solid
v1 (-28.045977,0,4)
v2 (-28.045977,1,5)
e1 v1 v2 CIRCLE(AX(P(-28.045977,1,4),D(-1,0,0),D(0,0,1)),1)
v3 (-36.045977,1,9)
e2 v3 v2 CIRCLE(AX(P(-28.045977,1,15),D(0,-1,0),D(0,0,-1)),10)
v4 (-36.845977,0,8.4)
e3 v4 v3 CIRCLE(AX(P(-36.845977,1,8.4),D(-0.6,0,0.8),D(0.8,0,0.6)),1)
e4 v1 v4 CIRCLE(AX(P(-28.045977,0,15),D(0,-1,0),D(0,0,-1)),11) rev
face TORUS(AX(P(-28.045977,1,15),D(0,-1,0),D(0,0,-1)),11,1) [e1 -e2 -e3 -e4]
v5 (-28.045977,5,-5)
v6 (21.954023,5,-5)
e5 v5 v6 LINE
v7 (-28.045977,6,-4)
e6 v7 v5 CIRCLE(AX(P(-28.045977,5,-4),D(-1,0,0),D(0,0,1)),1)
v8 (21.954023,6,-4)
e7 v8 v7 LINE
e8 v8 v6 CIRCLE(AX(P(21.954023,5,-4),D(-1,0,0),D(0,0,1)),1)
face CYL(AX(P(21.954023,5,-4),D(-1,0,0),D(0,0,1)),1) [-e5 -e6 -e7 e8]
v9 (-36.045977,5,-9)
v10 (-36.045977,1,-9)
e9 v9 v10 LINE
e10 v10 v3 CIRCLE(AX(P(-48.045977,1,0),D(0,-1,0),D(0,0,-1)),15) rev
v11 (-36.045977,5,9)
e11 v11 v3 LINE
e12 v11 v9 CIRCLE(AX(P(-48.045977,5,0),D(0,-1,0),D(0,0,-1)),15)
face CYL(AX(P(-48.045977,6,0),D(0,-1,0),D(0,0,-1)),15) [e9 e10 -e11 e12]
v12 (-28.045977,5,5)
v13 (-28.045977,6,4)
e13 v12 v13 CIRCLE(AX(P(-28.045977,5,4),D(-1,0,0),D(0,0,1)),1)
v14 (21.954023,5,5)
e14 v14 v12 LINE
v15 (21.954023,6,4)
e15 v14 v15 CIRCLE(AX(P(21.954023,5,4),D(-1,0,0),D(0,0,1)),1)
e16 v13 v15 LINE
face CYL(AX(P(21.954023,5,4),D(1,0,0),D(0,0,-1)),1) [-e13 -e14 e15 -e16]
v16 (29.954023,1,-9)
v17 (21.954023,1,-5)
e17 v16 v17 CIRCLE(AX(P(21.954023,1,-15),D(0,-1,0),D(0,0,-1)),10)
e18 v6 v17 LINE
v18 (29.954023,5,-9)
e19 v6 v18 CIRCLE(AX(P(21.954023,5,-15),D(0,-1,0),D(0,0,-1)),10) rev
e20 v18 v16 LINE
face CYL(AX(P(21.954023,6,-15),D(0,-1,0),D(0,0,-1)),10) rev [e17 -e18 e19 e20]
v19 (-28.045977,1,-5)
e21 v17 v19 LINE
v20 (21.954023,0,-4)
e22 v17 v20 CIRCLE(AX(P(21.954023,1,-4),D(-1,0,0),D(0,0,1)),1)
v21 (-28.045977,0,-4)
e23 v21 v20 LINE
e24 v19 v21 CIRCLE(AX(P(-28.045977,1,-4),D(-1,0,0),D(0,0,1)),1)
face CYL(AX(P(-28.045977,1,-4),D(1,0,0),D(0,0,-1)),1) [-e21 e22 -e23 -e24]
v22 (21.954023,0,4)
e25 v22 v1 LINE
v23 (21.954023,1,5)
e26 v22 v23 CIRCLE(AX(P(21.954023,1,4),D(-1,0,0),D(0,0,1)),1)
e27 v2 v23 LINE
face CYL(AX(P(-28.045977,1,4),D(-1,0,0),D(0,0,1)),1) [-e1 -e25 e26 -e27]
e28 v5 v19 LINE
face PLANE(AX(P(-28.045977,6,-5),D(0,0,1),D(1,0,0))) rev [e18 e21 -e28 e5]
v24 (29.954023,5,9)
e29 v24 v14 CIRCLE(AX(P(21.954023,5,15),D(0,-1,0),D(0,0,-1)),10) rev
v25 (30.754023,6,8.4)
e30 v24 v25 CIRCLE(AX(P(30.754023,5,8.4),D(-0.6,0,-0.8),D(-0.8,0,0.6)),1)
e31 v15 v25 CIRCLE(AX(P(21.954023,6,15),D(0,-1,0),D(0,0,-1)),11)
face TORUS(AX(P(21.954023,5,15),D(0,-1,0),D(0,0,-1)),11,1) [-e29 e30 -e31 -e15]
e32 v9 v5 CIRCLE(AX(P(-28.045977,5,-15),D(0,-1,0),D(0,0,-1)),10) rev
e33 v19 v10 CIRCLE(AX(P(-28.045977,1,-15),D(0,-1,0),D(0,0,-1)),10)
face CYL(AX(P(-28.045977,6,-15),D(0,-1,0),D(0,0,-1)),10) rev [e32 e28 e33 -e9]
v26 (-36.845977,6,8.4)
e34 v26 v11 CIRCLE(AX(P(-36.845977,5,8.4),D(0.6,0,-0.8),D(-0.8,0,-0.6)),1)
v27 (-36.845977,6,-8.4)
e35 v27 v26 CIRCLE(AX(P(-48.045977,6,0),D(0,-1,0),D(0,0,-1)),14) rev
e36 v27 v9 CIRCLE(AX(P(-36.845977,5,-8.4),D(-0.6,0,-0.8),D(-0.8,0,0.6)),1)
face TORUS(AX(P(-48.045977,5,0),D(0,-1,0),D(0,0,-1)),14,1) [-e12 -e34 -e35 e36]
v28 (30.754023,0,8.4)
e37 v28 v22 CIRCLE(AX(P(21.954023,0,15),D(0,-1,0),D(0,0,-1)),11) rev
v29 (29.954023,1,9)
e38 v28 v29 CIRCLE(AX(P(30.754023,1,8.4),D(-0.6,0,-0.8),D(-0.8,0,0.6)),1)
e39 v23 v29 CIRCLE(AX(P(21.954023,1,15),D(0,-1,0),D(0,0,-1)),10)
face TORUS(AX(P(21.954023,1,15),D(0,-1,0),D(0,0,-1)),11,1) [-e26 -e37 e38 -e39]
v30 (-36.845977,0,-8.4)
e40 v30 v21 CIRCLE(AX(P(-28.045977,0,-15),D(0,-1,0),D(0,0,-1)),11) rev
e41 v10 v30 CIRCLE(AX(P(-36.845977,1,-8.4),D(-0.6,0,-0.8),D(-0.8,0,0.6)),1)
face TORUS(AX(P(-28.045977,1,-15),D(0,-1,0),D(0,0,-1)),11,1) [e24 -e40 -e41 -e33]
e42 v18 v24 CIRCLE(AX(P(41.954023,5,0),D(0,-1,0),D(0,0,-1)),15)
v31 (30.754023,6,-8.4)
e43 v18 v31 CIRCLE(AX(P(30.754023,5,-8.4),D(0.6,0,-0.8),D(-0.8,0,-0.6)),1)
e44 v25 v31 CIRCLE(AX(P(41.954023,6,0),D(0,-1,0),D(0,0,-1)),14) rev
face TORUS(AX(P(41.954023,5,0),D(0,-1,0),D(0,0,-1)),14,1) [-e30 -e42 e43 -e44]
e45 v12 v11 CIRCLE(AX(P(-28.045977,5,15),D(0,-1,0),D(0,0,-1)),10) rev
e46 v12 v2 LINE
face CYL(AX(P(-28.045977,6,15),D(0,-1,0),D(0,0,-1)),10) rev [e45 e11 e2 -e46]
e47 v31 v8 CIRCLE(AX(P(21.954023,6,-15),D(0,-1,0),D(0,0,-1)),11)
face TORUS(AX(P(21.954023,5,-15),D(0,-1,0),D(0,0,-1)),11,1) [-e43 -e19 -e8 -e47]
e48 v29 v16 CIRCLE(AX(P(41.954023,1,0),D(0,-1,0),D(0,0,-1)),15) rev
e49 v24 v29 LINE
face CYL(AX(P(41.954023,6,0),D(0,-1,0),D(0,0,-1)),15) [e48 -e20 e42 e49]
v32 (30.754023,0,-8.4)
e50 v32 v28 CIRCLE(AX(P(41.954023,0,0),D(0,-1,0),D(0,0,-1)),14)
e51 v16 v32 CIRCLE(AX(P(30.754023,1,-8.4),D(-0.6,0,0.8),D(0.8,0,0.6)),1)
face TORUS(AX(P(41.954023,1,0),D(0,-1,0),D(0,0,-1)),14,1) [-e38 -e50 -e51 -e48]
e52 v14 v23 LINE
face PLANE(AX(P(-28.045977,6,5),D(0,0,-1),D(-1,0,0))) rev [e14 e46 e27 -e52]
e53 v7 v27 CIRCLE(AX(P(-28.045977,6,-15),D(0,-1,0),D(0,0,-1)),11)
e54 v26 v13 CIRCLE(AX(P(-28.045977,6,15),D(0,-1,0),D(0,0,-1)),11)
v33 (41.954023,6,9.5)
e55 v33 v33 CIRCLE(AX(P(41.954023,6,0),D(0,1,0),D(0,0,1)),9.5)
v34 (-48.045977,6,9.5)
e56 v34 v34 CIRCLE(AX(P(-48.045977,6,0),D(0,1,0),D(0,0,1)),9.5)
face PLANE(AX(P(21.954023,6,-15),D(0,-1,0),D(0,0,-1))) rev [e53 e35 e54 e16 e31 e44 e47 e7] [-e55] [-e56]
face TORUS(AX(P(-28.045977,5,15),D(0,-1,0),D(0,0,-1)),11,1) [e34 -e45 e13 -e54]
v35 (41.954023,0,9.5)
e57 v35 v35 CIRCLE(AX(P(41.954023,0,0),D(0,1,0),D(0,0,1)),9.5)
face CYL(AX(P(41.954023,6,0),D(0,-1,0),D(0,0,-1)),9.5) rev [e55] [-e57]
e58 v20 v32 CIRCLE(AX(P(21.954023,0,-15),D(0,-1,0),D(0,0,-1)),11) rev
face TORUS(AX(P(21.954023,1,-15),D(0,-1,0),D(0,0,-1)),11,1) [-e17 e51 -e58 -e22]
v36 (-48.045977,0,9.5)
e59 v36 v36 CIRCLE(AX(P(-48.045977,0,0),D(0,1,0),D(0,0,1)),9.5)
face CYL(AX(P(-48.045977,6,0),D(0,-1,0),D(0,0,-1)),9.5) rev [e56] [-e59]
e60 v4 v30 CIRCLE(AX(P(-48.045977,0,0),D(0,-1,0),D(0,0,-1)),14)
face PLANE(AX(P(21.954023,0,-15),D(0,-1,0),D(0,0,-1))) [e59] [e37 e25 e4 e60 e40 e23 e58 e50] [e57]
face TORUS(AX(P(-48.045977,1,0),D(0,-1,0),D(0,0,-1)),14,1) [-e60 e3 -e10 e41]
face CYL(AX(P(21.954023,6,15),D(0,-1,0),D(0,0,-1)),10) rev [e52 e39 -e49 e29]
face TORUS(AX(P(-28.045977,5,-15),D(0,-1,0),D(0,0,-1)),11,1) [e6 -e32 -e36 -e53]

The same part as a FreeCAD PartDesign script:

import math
import FreeCAD as App
import Part
import Sketcher


def edges_at(feature, points):
    """Names of the edges that pass closest to the given points."""
    edges = feature.Shape.Edges
    near = lambda p: min(range(len(edges)), key=lambda i: edges[i].distToShape(Part.Vertex(*p))[0])
    return sorted({f"Edge{near(p) + 1}" for p in points})

doc = App.newDocument("Part")
body = doc.addObject("PartDesign::Body", "Body")

sketch1 = doc.addObject("Sketcher::SketchObject", "Sketch")
body.addObject(sketch1)
sketch1.AttachmentSupport = (doc.XZ_Plane, [""])
sketch1.MapMode = "FlatFace"
sketch1.addGeometry(Part.LineSegment(App.Vector(21.954023, -5, 0), App.Vector(-28.045977, -5, 0)), False)
sketch1.addGeometry(Part.ArcOfCircle(Part.Circle(App.Vector(-28.045977, -15, 0), App.Vector(0, 0, 1), 10), math.radians(90), math.radians(143.130102)), False)
sketch1.addGeometry(Part.ArcOfCircle(Part.Circle(App.Vector(-48.045977, 0, 0), App.Vector(0, 0, 1), 15), math.radians(36.869898), math.radians(323.130102)), False)
sketch1.addGeometry(Part.ArcOfCircle(Part.Circle(App.Vector(-28.045977, 15, 0), App.Vector(0, 0, 1), 10), math.radians(-143.130102), math.radians(-90)), False)
sketch1.addGeometry(Part.LineSegment(App.Vector(-28.045977, 5, 0), App.Vector(21.954023, 5, 0)), False)
sketch1.addGeometry(Part.ArcOfCircle(Part.Circle(App.Vector(21.954023, 15, 0), App.Vector(0, 0, 1), 10), math.radians(-90), math.radians(-36.869898)), False)
sketch1.addGeometry(Part.ArcOfCircle(Part.Circle(App.Vector(41.954023, 0, 0), App.Vector(0, 0, 1), 15), math.radians(-143.130102), math.radians(143.130102)), False)
sketch1.addGeometry(Part.ArcOfCircle(Part.Circle(App.Vector(21.954023, -15, 0), App.Vector(0, 0, 1), 10), math.radians(36.869898), math.radians(90)), False)
sketch1.addGeometry(Part.Circle(App.Vector(41.954023, 0, 0), App.Vector(0, 0, 1), 9.5), False)
sketch1.addGeometry(Part.Circle(App.Vector(-48.045977, 0, 0), App.Vector(0, 0, 1), 9.5), False)
sketch1.addConstraint(Sketcher.Constraint("Tangent", 0, 2, 1, 1))
sketch1.addConstraint(Sketcher.Constraint("Tangent", 1, 2, 2, 2))
sketch1.addConstraint(Sketcher.Constraint("Tangent", 2, 1, 3, 1))
sketch1.addConstraint(Sketcher.Constraint("Tangent", 3, 2, 4, 1))
sketch1.addConstraint(Sketcher.Constraint("Tangent", 4, 2, 5, 1))
sketch1.addConstraint(Sketcher.Constraint("Tangent", 5, 2, 6, 2))
sketch1.addConstraint(Sketcher.Constraint("Tangent", 6, 1, 7, 1))
sketch1.addConstraint(Sketcher.Constraint("Tangent", 7, 2, 0, 1))
sketch1.addConstraint(Sketcher.Constraint("Horizontal", 0))
sketch1.addConstraint(Sketcher.Constraint("Horizontal", 4))
sketch1.addConstraint(Sketcher.Constraint("Coincident", 8, 3, 6, 3))
sketch1.addConstraint(Sketcher.Constraint("Coincident", 9, 3, 2, 3))
sketch1.addConstraint(Sketcher.Constraint("Equal", 1, 3))
sketch1.addConstraint(Sketcher.Constraint("Equal", 3, 5))
sketch1.addConstraint(Sketcher.Constraint("Equal", 2, 6))
sketch1.addConstraint(Sketcher.Constraint("Equal", 5, 7))
sketch1.addConstraint(Sketcher.Constraint("Equal", 8, 9))
sketch1.addConstraint(Sketcher.Constraint("Symmetric", 1, 3, 3, 3, -1))
sketch1.addConstraint(Sketcher.Constraint("PointOnObject", 6, 3, -1))
sketch1.addConstraint(Sketcher.Constraint("Diameter", 8, 19.0))
sketch1.addConstraint(Sketcher.Constraint("Radius", 1, 10.0))
sketch1.addConstraint(Sketcher.Constraint("Radius", 2, 15.0))
sketch1.addConstraint(Sketcher.Constraint("DistanceX", 0, 2, 0, 1, 50.0))
sketch1.addConstraint(Sketcher.Constraint("DistanceY", 1, 3, -1, 1, 15.0))
sketch1.addConstraint(Sketcher.Constraint("DistanceX", 1, 3, -1, 1, 28.045977))
pad1 = doc.addObject("PartDesign::Pad", "Pad")
body.addObject(pad1)
pad1.Profile = sketch1
pad1.Length = 6
pad1.Reversed = True
doc.recompute()

fillet = doc.addObject("PartDesign::Fillet", "Fillet")
body.addObject(fillet)
fillet.Base = (pad1, edges_at(pad1, [
    (-63.046, 0, 0),
    (-32.518, 0, -6.056),
    (-3.046, 0, -5),
    (26.426, 0, -6.056),
    (-32.518, 6, -6.056),
    (-63.046, 6, 0),
    (-32.518, 6, 6.056),
    (-3.046, 6, 5),
    (26.426, 6, 6.056),
    (56.954, 6, 0),
    (26.426, 6, -6.056),
    (56.954, 0, 0),
    (-3.046, 6, -5),
    (26.426, 0, 6.056),
    (-3.046, 0, 5),
    (-32.518, 0, 6.056),
]))
fillet.Radius = 1

doc.recompute()
